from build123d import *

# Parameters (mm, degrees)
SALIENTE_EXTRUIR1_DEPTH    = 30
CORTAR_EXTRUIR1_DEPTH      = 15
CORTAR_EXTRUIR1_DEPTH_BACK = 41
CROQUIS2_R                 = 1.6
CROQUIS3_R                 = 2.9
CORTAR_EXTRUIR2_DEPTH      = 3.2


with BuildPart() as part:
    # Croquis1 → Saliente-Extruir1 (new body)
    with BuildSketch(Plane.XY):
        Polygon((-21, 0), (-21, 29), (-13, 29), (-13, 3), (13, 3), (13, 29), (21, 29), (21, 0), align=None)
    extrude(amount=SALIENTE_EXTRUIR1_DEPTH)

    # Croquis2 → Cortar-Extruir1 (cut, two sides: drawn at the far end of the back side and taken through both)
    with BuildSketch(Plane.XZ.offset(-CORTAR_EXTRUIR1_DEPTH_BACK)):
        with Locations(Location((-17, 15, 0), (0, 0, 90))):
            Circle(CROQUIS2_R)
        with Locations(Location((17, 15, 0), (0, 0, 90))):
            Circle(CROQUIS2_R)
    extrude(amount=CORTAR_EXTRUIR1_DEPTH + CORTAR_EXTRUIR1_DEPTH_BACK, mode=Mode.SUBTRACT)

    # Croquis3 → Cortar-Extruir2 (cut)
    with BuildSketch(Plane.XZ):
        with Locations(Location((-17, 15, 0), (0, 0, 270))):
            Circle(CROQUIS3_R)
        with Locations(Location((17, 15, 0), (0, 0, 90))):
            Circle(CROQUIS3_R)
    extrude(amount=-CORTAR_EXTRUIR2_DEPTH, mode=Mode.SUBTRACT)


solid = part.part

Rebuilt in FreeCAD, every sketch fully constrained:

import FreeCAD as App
import Part
import Sketcher

doc = App.newDocument("Part")
body = doc.addObject("PartDesign::Body", "Body")

# Sketch on XY plane
sketch1 = doc.addObject("Sketcher::SketchObject", "Sketch")
body.addObject(sketch1)
sketch1.AttachmentSupport = (doc.XY_Plane, [""])
sketch1.MapMode = "FlatFace"
sketch1.addGeometry(Part.LineSegment(App.Vector(-21, 29, 0), App.Vector(-21, 0, 0)), False)
sketch1.addGeometry(Part.LineSegment(App.Vector(-21, 0, 0), App.Vector(21, 0, 0)), False)
sketch1.addGeometry(Part.LineSegment(App.Vector(21, 0, 0), App.Vector(21, 29, 0)), False)
sketch1.addGeometry(Part.LineSegment(App.Vector(21, 29, 0), App.Vector(13, 29, 0)), False)
sketch1.addGeometry(Part.LineSegment(App.Vector(13, 29, 0), App.Vector(13, 3, 0)), False)
sketch1.addGeometry(Part.LineSegment(App.Vector(13, 3, 0), App.Vector(-13, 3, 0)), False)
sketch1.addGeometry(Part.LineSegment(App.Vector(-13, 3, 0), App.Vector(-13, 29, 0)), False)
sketch1.addGeometry(Part.LineSegment(App.Vector(-13, 29, 0), App.Vector(-21, 29, 0)), False)
sketch1.addConstraint(Sketcher.Constraint("Coincident", 0, 2, 1, 1))
sketch1.addConstraint(Sketcher.Constraint("Coincident", 1, 2, 2, 1))
sketch1.addConstraint(Sketcher.Constraint("Coincident", 2, 2, 3, 1))
sketch1.addConstraint(Sketcher.Constraint("Coincident", 3, 2, 4, 1))
sketch1.addConstraint(Sketcher.Constraint("Coincident", 4, 2, 5, 1))
sketch1.addConstraint(Sketcher.Constraint("Coincident", 5, 2, 6, 1))
sketch1.addConstraint(Sketcher.Constraint("Coincident", 6, 2, 7, 1))
sketch1.addConstraint(Sketcher.Constraint("Coincident", 7, 2, 0, 1))
sketch1.addConstraint(Sketcher.Constraint("Vertical", 0))
sketch1.addConstraint(Sketcher.Constraint("Horizontal", 1))
sketch1.addConstraint(Sketcher.Constraint("Vertical", 2))
sketch1.addConstraint(Sketcher.Constraint("Horizontal", 3))
sketch1.addConstraint(Sketcher.Constraint("Vertical", 4))
sketch1.addConstraint(Sketcher.Constraint("Horizontal", 5))
sketch1.addConstraint(Sketcher.Constraint("Vertical", 6))
sketch1.addConstraint(Sketcher.Constraint("Horizontal", 7))
sketch1.addConstraint(Sketcher.Constraint("Symmetric", 0, 2, 1, 2, -1, 1))
sketch1.addConstraint(Sketcher.Constraint("Symmetric", 3, 2, 6, 2, -2))
sketch1.addConstraint(Sketcher.Constraint("Equal", 5, 4))
sketch1.addConstraint(Sketcher.Constraint("DistanceX", 1, 1, 1, 2, 42.0))
sketch1.addConstraint(Sketcher.Constraint("DistanceX", 3, 2, 3, 1, 8.0))
sketch1.addConstraint(Sketcher.Constraint("DistanceY", 0, 2, 0, 1, 29.0))
pad1 = doc.addObject("PartDesign::Pad", "Pad")
body.addObject(pad1)
pad1.Profile = sketch1
pad1.Length = 30

# Sketch on XZ plane
sketch2 = doc.addObject("Sketcher::SketchObject", "Sketch001")
body.addObject(sketch2)
sketch2.AttachmentSupport = (doc.XZ_Plane, [""])
sketch2.MapMode = "FlatFace"
sketch2.addGeometry(Part.Circle(App.Vector(-17, 15, 0), App.Vector(0, 0, 1), 1.6), False)
sketch2.addGeometry(Part.Circle(App.Vector(17, 15, 0), App.Vector(0, 0, 1), 1.6), False)
sketch2.addConstraint(Sketcher.Constraint("Equal", 0, 1))
sketch2.addConstraint(Sketcher.Constraint("Symmetric", 0, 3, 1, 3, -2))
sketch2.addConstraint(Sketcher.Constraint("Diameter", 0, 3.2))
sketch2.addConstraint(Sketcher.Constraint("DistanceX", 0, 3, -1, 1, 17.0))
sketch2.addConstraint(Sketcher.Constraint("DistanceY", -1, 1, 0, 3, 15.0))
pocket1 = doc.addObject("PartDesign::Pocket", "Pocket")
body.addObject(pocket1)
pocket1.Profile = sketch2
pocket1.Type = "ThroughAll"
pocket1.Midplane = True

# Sketch on XZ plane
sketch3 = doc.addObject("Sketcher::SketchObject", "Sketch002")
body.addObject(sketch3)
sketch3.AttachmentSupport = (doc.XZ_Plane, [""])
sketch3.MapMode = "FlatFace"
sketch3.addGeometry(Part.Circle(App.Vector(-17, 15, 0), App.Vector(0, 0, 1), 2.9), False)
sketch3.addGeometry(Part.Circle(App.Vector(17, 15, 0), App.Vector(0, 0, 1), 2.9), False)
sketch3.addConstraint(Sketcher.Constraint("Equal", 0, 1))
sketch3.addConstraint(Sketcher.Constraint("Symmetric", 0, 3, 1, 3, -2))
sketch3.addConstraint(Sketcher.Constraint("Diameter", 0, 5.8))
sketch3.addConstraint(Sketcher.Constraint("DistanceX", 0, 3, -1, 1, 17.0))
sketch3.addConstraint(Sketcher.Constraint("DistanceY", -1, 1, 0, 3, 15.0))
pocket2 = doc.addObject("PartDesign::Pocket", "Pocket001")
body.addObject(pocket2)
pocket2.Profile = sketch3
pocket2.Length = 3.2

doc.recompute()
